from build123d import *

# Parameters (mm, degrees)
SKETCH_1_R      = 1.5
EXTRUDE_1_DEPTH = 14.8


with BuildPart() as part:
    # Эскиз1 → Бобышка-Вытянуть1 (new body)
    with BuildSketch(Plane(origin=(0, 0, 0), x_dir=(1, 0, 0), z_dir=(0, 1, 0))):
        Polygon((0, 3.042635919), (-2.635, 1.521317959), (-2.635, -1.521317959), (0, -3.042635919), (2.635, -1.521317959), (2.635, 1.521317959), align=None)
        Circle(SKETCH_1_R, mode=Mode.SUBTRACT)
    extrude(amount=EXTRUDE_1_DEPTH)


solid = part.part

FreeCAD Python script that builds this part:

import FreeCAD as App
import Part
import Sketcher

V = App.Vector
Q = App.Units.Quantity

doc = App.newDocument("Part")
body = doc.addObject("PartDesign::Body", "Body")

sketch1 = doc.addObject("Sketcher::SketchObject", "Sketch")
body.addObject(sketch1)
sketch1.AttachmentSupport = (doc.XZ_Plane, [""])
sketch1.MapMode = "FlatFace"
sketch1.addGeometry(Part.LineSegment(V(0, -3, 0), V(-2.6, -1.5, 0)), False)
sketch1.addGeometry(Part.LineSegment(V(-2.6, -1.5, 0), V(-2.6, 1.5, 0)), False)
sketch1.addGeometry(Part.LineSegment(V(-2.6, 1.5, 0), V(0, 3, 0)), False)
sketch1.addGeometry(Part.LineSegment(V(0, 3, 0), V(2.6, 1.5, 0)), False)
sketch1.addGeometry(Part.LineSegment(V(2.6, 1.5, 0), V(2.6, -1.5, 0)), False)
sketch1.addGeometry(Part.LineSegment(V(2.6, -1.5, 0), V(0, -3, 0)), False)
sketch1.addGeometry(Part.Circle(V(0, 0, 0), V(0, 0, 1), 1.5), False)
sketch1.addConstraint(Sketcher.Constraint("Coincident", 0, 2, 1, 1))
sketch1.addConstraint(Sketcher.Constraint("Coincident", 1, 2, 2, 1))
sketch1.addConstraint(Sketcher.Constraint("Coincident", 2, 2, 3, 1))
sketch1.addConstraint(Sketcher.Constraint("Coincident", 3, 2, 4, 1))
sketch1.addConstraint(Sketcher.Constraint("Coincident", 4, 2, 5, 1))
sketch1.addConstraint(Sketcher.Constraint("Coincident", 5, 2, 0, 1))
sketch1.addConstraint(Sketcher.Constraint("Vertical", 1))
sketch1.addConstraint(Sketcher.Constraint("Vertical", 4))
sketch1.addConstraint(Sketcher.Constraint("Coincident", 6, 3, -1, 1))
sketch1.addConstraint(Sketcher.Constraint("Symmetric", 0, 2, 3, 2, -1, 1))
sketch1.addConstraint(Sketcher.Constraint("Symmetric", 2, 2, 5, 2, -1, 1))
sketch1.addConstraint(Sketcher.Constraint("PointOnObject", 2, 2, -2))
sketch1.addConstraint(Sketcher.Constraint("Parallel", 2, 5))
sketch1.addConstraint(Sketcher.Constraint("Horizontal", 1, 2, 3, 2))
sketch1.addConstraint(Sketcher.Constraint("Diameter", 6, Q("3 mm")))
sketch1.addConstraint(Sketcher.Constraint("Angle", 0, Q("150 deg")))
sketch1.addConstraint(Sketcher.Constraint("DistanceX", 1, 2, 3, 2, Q("5.27 mm")))
sketch1.addConstraint(Sketcher.Constraint("DistanceY", 1, 1, 1, 2, Q("3.042636 mm")))
pad1 = doc.addObject("PartDesign::Pad", "Pad")
body.addObject(pad1)
pad1.Profile = sketch1
pad1.Length = 14.8
pad1.Reversed = True

doc.recompute()
